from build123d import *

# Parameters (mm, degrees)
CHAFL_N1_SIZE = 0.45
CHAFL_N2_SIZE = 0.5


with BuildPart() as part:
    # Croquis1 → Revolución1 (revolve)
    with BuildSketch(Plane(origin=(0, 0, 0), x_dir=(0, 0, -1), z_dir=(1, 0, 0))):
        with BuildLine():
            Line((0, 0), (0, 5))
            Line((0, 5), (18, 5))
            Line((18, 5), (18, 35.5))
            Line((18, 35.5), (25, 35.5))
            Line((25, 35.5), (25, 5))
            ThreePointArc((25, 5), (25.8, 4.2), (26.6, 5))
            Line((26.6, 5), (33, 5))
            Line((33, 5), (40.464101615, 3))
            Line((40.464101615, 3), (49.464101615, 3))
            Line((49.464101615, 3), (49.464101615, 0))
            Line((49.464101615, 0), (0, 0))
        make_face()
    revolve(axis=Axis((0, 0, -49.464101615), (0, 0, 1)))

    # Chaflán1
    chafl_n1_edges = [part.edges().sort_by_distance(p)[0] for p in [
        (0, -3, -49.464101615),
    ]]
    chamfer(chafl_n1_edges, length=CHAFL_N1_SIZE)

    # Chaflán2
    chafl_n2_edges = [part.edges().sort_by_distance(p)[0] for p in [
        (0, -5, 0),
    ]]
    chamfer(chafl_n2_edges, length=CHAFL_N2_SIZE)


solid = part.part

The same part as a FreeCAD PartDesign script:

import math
import FreeCAD as App
import Part
import Sketcher

V = App.Vector
Q = App.Units.Quantity


def edges_at(feature, points):
    """Names of the edges that pass closest to the given points."""
    edges = feature.Shape.Edges
    near = lambda p: min(range(len(edges)), key=lambda i: edges[i].distToShape(Part.Vertex(*p))[0])
    return sorted({f"Edge{near(p) + 1}" for p in points})

doc = App.newDocument("Part")
body = doc.addObject("PartDesign::Body", "Body")

sketch1 = body.newObject("Sketcher::SketchObject", "Sketch")
sketch1.AttachmentSupport = (doc.getObject("YZ_Plane"), [""])
sketch1.MapMode = "FlatFace"
sketch1.addGeometry([
    Part.LineSegment(V(5, 0, 0), V(0, 0, 0)),
    Part.LineSegment(V(0, 0, 0), V(0, -49.5, 0)),
    Part.LineSegment(V(0, -49.5, 0), V(3, -49.5, 0)),
    Part.LineSegment(V(3, -49.5, 0), V(3, -40.5, 0)),
    Part.LineSegment(V(3, -40.5, 0), V(5, -33, 0)),
    Part.LineSegment(V(5, -33, 0), V(5, -26.6, 0)),
    Part.ArcOfCircle(Part.Circle(V(5, -25.8, 0), V(0, 0, 1), 0.8), math.radians(90), math.radians(270)),
    Part.LineSegment(V(5, -25, 0), V(35.5, -25, 0)),
    Part.LineSegment(V(35.5, -25, 0), V(35.5, -18, 0)),
    Part.LineSegment(V(35.5, -18, 0), V(5, -18, 0)),
    Part.LineSegment(V(5, -18, 0), V(5, 0, 0)),
], False)
sketch1.addConstraint([
    Sketcher.Constraint("Coincident", 0, 2, 1, 1),
    Sketcher.Constraint("Coincident", 1, 2, 2, 1),
    Sketcher.Constraint("Coincident", 2, 2, 3, 1),
    Sketcher.Constraint("Coincident", 3, 2, 4, 1),
    Sketcher.Constraint("Coincident", 4, 2, 5, 1),
    Sketcher.Constraint("Coincident", 5, 2, 6, 2),
    Sketcher.Constraint("Tangent", 6, 1, 7, 1),
    Sketcher.Constraint("Coincident", 7, 2, 8, 1),
    Sketcher.Constraint("Coincident", 8, 2, 9, 1),
    Sketcher.Constraint("Coincident", 9, 2, 10, 1),
    Sketcher.Constraint("Coincident", 10, 2, 0, 1),
    Sketcher.Constraint("Horizontal", 0),
    Sketcher.Constraint("Vertical", 1),
    Sketcher.Constraint("Horizontal", 2),
    Sketcher.Constraint("Vertical", 3),
    Sketcher.Constraint("Vertical", 5),
    Sketcher.Constraint("Horizontal", 7),
    Sketcher.Constraint("Vertical", 8),
    Sketcher.Constraint("Horizontal", 9),
    Sketcher.Constraint("Vertical", 10),
    Sketcher.Constraint("Coincident", 0, 2, -1, 1),
    Sketcher.Constraint("Vertical", 6, 3, 4, 2),
    Sketcher.Constraint("Vertical", 6, 1, 9, 2),
    Sketcher.Constraint("Radius", 6, 0.8),
    Sketcher.Constraint("DistanceX", 0, 2, 0, 1, 5.0),
    Sketcher.Constraint("DistanceX", 2, 1, 2, 2, 3.0),
    Sketcher.Constraint("DistanceY", 3, 1, 3, 2, 9.0),
    Sketcher.Constraint("DistanceY", 8, 1, 8, 2, 7.0),
    Sketcher.Constraint("DistanceY", 10, 1, 10, 2, 18.0),
    Sketcher.Constraint("Angle", 4, Q("75 deg")),
    Sketcher.Constraint("DistanceX", 7, 1, 7, 2, 30.5),
    Sketcher.Constraint("DistanceY", 5, 1, 5, 2, 6.4),
])
revolution = body.newObject("PartDesign::Revolution", "Revolution")
revolution.Profile = sketch1
revolution.ReferenceAxis = (sketch1, ["V_Axis"])
revolution.Angle = 360
doc.recompute()

chamfer = body.newObject("PartDesign::Chamfer", "Chamfer")
chamfer.Base = (revolution, edges_at(revolution, [(0, -3, -49.464)]))
chamfer.Size = 0.45
doc.recompute()

chamfer2 = body.newObject("PartDesign::Chamfer", "Chamfer001")
chamfer2.Base = (chamfer, edges_at(chamfer, [(0, -5, 0)]))
chamfer2.Size = 0.5

doc.recompute()
